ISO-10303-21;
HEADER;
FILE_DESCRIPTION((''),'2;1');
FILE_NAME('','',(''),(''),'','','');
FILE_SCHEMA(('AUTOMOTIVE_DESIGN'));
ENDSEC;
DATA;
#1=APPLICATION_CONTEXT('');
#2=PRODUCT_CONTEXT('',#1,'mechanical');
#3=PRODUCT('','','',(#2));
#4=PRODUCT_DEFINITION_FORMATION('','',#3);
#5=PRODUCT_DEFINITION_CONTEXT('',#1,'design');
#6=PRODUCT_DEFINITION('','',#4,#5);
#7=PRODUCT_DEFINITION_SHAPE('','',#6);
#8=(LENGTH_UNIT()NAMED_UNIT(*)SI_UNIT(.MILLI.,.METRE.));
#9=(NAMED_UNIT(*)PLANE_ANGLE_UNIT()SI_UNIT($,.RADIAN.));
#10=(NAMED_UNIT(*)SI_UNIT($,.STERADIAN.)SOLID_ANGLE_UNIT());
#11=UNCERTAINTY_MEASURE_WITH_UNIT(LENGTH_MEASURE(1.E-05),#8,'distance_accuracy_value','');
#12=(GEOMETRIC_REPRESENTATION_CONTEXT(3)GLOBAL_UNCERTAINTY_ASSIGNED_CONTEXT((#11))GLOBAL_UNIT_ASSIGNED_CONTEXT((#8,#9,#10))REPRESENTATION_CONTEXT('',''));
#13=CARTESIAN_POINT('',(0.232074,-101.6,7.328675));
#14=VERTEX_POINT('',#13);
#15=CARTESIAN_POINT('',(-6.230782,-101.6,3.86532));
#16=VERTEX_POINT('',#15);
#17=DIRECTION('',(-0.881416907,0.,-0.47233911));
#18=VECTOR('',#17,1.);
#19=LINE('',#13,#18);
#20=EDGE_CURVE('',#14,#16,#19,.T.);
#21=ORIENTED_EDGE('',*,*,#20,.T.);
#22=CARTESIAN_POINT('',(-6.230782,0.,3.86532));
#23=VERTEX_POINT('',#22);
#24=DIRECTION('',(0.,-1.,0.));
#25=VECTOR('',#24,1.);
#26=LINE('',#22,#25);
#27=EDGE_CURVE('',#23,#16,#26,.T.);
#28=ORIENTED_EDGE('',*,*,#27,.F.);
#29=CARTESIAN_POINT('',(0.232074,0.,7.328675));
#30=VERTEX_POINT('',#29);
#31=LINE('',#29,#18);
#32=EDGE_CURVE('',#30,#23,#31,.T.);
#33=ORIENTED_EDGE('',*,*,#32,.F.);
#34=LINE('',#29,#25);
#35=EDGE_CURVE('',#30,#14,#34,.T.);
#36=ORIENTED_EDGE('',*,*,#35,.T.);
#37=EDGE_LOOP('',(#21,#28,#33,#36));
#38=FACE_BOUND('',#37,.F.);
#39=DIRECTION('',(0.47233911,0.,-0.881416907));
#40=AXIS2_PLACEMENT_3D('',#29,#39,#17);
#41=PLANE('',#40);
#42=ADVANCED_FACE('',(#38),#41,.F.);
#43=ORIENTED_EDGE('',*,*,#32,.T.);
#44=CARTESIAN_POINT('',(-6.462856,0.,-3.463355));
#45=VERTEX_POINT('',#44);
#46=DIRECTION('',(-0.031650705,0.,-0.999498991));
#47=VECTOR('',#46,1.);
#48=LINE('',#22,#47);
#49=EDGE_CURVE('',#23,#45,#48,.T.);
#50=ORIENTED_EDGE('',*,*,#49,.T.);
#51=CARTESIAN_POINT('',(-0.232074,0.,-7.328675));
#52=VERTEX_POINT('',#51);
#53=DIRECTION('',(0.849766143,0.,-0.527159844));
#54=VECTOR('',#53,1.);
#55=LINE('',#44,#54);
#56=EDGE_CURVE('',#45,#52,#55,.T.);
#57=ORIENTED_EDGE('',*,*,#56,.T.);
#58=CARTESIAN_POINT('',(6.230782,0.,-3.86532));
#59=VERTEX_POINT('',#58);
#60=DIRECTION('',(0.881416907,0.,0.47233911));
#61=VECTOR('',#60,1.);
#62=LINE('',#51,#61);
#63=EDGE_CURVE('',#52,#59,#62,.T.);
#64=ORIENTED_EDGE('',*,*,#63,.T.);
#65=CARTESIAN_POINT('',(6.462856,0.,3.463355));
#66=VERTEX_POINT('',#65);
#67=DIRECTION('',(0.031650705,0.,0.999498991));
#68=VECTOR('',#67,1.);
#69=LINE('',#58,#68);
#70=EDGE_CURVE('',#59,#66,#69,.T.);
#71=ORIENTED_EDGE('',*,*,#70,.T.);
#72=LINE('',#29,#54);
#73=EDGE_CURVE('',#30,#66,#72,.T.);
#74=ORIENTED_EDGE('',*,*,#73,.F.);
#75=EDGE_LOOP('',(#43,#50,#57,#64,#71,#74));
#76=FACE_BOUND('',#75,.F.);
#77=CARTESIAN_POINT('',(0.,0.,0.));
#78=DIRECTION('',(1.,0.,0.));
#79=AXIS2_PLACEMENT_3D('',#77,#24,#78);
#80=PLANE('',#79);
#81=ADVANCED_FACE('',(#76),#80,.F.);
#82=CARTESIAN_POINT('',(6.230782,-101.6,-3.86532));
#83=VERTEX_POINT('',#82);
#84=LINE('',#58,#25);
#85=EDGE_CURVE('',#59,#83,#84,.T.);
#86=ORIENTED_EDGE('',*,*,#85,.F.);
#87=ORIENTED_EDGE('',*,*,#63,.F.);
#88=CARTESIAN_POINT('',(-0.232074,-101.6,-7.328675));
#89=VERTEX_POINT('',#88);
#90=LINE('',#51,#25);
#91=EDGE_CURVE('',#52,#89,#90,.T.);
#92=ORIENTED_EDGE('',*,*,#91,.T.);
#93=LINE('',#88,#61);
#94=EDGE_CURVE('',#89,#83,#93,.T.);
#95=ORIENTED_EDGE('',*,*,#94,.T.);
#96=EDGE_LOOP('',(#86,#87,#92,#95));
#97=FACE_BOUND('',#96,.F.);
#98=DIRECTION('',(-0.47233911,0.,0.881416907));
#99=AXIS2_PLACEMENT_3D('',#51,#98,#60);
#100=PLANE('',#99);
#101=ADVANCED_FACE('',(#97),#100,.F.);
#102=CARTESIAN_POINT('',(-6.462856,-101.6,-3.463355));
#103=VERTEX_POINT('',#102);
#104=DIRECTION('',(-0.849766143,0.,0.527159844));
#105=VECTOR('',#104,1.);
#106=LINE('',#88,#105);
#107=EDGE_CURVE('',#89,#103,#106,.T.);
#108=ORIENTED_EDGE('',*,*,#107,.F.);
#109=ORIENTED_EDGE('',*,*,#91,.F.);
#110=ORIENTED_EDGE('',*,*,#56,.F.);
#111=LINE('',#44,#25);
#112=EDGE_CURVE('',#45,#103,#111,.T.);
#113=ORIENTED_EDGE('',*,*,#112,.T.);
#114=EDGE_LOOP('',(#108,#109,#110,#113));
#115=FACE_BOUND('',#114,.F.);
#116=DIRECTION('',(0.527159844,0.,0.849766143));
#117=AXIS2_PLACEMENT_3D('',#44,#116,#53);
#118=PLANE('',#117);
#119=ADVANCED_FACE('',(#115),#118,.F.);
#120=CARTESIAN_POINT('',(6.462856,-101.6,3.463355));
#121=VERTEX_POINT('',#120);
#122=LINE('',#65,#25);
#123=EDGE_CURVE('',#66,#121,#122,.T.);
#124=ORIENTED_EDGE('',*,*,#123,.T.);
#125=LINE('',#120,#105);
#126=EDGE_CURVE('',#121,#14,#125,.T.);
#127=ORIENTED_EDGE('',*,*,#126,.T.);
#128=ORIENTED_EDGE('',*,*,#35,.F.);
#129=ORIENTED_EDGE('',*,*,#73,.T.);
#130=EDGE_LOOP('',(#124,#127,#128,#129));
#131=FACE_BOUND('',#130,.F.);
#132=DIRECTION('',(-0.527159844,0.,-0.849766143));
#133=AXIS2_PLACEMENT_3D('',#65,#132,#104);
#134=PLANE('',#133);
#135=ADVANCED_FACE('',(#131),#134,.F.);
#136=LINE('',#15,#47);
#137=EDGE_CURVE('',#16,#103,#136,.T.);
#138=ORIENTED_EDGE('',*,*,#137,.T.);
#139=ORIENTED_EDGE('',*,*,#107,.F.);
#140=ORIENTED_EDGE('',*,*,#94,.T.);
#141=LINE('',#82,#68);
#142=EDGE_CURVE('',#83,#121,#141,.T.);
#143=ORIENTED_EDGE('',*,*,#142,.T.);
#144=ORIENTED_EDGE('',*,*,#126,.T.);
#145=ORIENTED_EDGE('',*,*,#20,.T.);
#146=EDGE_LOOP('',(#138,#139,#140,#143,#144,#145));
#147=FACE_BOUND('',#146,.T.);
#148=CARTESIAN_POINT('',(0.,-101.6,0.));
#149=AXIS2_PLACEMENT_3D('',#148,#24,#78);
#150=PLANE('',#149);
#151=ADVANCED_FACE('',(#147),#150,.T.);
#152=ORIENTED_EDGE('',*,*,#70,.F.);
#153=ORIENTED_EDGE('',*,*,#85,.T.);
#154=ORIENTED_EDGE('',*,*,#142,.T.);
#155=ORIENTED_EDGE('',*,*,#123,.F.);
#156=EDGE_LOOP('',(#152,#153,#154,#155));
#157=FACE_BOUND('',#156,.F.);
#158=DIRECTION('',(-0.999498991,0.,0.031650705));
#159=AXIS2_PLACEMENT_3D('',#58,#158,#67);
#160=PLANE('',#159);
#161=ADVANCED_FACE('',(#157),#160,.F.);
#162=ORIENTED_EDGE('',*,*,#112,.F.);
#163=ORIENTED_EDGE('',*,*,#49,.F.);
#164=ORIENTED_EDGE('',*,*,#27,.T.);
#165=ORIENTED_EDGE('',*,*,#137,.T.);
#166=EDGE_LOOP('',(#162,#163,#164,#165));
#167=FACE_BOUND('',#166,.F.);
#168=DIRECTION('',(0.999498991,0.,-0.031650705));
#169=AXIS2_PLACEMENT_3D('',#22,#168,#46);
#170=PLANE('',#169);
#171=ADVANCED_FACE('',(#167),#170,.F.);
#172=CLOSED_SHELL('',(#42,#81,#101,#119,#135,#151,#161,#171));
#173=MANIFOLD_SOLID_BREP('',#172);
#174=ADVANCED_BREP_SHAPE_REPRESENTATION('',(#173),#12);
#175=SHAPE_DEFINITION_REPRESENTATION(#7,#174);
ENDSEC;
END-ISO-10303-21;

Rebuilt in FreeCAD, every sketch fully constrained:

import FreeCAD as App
import Part
import Sketcher
Q = App.Units.Quantity


def add_polygon(sketch, points):
    """Adds a closed chain of lines whose ends are joined by coincident constraints."""
    first, n = sketch.GeometryCount, len(points)
    for a, b in zip(points, points[1:] + points[:1]):
        sketch.addGeometry(Part.LineSegment(App.Vector(*a, 0), App.Vector(*b, 0)), False)
    for i in range(n):
        sketch.addConstraint(Sketcher.Constraint("Coincident", first + i, 2, first + (i + 1) % n, 1))

doc = App.newDocument("Part")
body = doc.addObject("PartDesign::Body", "Body")

# Sketch on XZ plane
sketch1 = doc.addObject("Sketcher::SketchObject", "Sketch")
body.addObject(sketch1)
sketch1.AttachmentSupport = (doc.XZ_Plane, [""])
sketch1.MapMode = "FlatFace"
sketch1.addGeometry(Part.Circle(App.Vector(0, 0, 0), App.Vector(0, 0, 1), 6), False)
sketch1.addConstraint([
    Sketcher.Constraint("Coincident", 0, 3, -1, 1),
    Sketcher.Constraint("Diameter", 0, Q("0.5 in")),
])
pad1 = doc.addObject("PartDesign::Pad", "Pad")
body.addObject(pad1)
pad1.Profile = sketch1
pad1.Length = Q("4 in")

# Sketch on XZ plane
sketch2 = doc.addObject("Sketcher::SketchObject", "Sketch001")
body.addObject(sketch2)
sketch2.AttachmentSupport = (doc.XZ_Plane, [""])
sketch2.MapMode = "FlatFace"
add_polygon(sketch2, [(-6, 4), (-6, -3), (0, -7), (6, -4), (6, 3), (0, 7)])  # lines 0-5
sketch2.addConstraint([
    Sketcher.Constraint("Symmetric", 0, 2, 3, 2, -1, 1),
    Sketcher.Constraint("Symmetric", 1, 2, 4, 2, -1, 1),
    Sketcher.Constraint("Symmetric", 2, 2, 5, 2, -1, 1),
    Sketcher.Constraint("Equal", 0, 1),
    Sketcher.Constraint("Equal", 1, 2),
    Sketcher.Constraint("Distance", 0, Q("7.332349 mm")),
    Sketcher.Constraint("DistanceX", -1, 1, 2, 2, Q("6.230782 mm")),
    Sketcher.Constraint("DistanceY", 2, 2, -1, 1, Q("3.86532 mm")),
    Sketcher.Constraint("DistanceY", 1, 2, 0, 2, Q("3.86532 mm")),
])
pad2 = doc.addObject("PartDesign::Pad", "Pad001")
body.addObject(pad2)
pad2.Profile = sketch2
pad2.Length = Q("4 in")

doc.recompute()
